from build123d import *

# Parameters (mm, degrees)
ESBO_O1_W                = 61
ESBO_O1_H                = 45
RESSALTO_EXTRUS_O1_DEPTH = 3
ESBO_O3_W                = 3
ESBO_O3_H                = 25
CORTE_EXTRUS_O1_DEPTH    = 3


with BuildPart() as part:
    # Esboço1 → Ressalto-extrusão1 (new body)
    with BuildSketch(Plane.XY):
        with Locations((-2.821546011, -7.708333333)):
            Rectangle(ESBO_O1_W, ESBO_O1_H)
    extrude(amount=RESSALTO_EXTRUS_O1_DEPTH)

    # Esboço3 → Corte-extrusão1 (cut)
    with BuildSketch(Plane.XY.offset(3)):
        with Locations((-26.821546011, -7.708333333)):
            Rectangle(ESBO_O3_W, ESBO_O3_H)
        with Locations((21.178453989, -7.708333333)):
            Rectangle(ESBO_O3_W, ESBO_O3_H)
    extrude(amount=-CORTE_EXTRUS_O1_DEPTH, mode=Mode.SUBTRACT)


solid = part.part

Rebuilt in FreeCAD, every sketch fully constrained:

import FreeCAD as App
import Part
import Sketcher

V = App.Vector


def add_polygon(sketch, points):
    """Adds a closed chain of lines whose ends are joined by coincident constraints."""
    first, n = sketch.GeometryCount, len(points)
    for a, b in zip(points, points[1:] + points[:1]):
        sketch.addGeometry(Part.LineSegment(App.Vector(*a, 0), App.Vector(*b, 0)), False)
    for i in range(n):
        sketch.addConstraint(Sketcher.Constraint("Coincident", first + i, 2, first + (i + 1) % n, 1))

doc = App.newDocument("Part")
body = doc.addObject("PartDesign::Body", "Body")

# Sketch on XY plane
sketch1 = body.newObject("Sketcher::SketchObject", "Sketch")
sketch1.AttachmentSupport = (doc.getObject("XY_Plane"), [""])
sketch1.MapMode = "FlatFace"
add_polygon(sketch1, [(-33, 15), (-33, -30), (28, -30), (28, 15)])  # lines 0-3
sketch1.addConstraint(Sketcher.Constraint("Vertical", 0))
sketch1.addConstraint(Sketcher.Constraint("Horizontal", 1))
sketch1.addConstraint(Sketcher.Constraint("Vertical", 2))
sketch1.addConstraint(Sketcher.Constraint("Horizontal", 3))
sketch1.addConstraint(Sketcher.Constraint("DistanceX", 1, 1, 1, 2, 61.0))
sketch1.addConstraint(Sketcher.Constraint("DistanceY", 0, 2, 0, 1, 45.0))
sketch1.addConstraint(Sketcher.Constraint("DistanceX", 0, 2, -1, 1, 33.321546))
sketch1.addConstraint(Sketcher.Constraint("DistanceY", 0, 2, -1, 1, 30.208333))
pad1 = body.newObject("PartDesign::Pad", "Pad")
pad1.Profile = sketch1
pad1.Length = 3

# Sketch on XY plane
sketch2 = body.newObject("Sketcher::SketchObject", "Sketch001")
sketch2.AttachmentSupport = (doc.getObject("XY_Plane"), [""])
sketch2.MapMode = "FlatFace"
sketch2.AttachmentOffset = App.Placement(V(0, 0, 3), App.Rotation())
add_polygon(sketch2, [(-28.3, 4.8), (-28.3, -20.2), (-25.3, -20.2), (-25.3, 4.8)])  # lines 0-3
add_polygon(sketch2, [(19.7, 4.8), (19.7, -20.2), (22.7, -20.2), (22.7, 4.8)])  # lines 4-7
sketch2.addConstraint(Sketcher.Constraint("Vertical", 0))
sketch2.addConstraint(Sketcher.Constraint("Horizontal", 1))
sketch2.addConstraint(Sketcher.Constraint("Vertical", 2))
sketch2.addConstraint(Sketcher.Constraint("Horizontal", 3))
sketch2.addConstraint(Sketcher.Constraint("Vertical", 4))
sketch2.addConstraint(Sketcher.Constraint("Horizontal", 5))
sketch2.addConstraint(Sketcher.Constraint("Vertical", 6))
sketch2.addConstraint(Sketcher.Constraint("Horizontal", 7))
sketch2.addConstraint(Sketcher.Constraint("Horizontal", 1, 2, 4, 2))
sketch2.addConstraint(Sketcher.Constraint("Horizontal", 3, 2, 6, 2))
sketch2.addConstraint(Sketcher.Constraint("Equal", 3, 5))
sketch2.addConstraint(Sketcher.Constraint("DistanceX", 1, 1, 1, 2, 3.0))
sketch2.addConstraint(Sketcher.Constraint("DistanceY", 0, 2, 0, 1, 25.0))
sketch2.addConstraint(Sketcher.Constraint("DistanceX", 1, 2, 4, 2, 45.0))
sketch2.addConstraint(Sketcher.Constraint("DistanceX", 0, 2, -1, 1, 28.321546))
sketch2.addConstraint(Sketcher.Constraint("DistanceY", 0, 2, -1, 1, 20.208333))
pocket1 = body.newObject("PartDesign::Pocket", "Pocket")
pocket1.Profile = sketch2
pocket1.Length = 3

doc.recompute()
